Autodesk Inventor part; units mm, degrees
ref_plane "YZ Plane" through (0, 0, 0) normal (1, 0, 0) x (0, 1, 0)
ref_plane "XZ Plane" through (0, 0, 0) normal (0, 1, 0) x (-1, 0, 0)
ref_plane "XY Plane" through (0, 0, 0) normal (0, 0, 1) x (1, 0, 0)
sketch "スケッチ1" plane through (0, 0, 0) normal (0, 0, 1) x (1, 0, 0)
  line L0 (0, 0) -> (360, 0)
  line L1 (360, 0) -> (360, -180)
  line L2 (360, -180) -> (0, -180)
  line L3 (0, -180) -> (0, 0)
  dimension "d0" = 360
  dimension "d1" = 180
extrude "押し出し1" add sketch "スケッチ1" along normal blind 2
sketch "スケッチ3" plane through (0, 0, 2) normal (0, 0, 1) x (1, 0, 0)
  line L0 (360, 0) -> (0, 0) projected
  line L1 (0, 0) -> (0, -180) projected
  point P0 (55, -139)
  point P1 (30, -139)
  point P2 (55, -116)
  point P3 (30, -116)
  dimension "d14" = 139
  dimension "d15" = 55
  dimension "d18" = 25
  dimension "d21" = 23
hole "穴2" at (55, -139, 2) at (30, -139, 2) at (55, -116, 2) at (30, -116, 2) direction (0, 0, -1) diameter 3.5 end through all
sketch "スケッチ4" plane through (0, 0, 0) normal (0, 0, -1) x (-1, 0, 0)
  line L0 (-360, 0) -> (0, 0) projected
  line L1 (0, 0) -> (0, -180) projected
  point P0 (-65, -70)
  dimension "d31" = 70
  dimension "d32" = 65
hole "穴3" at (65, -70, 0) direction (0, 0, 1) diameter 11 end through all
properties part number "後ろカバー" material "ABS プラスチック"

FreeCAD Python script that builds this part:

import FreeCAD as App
import Part
import Sketcher

V = App.Vector
Q = App.Units.Quantity

doc = App.newDocument("Part")
body = doc.addObject("PartDesign::Body", "Body")

# Sketch on XY plane
sketch1 = body.newObject("Sketcher::SketchObject", "Sketch")
sketch1.AttachmentSupport = (doc.getObject("XY_Plane"), [""])
sketch1.MapMode = "FlatFace"
sketch1.addGeometry(Part.LineSegment(V(360, 0, 0), V(0, 0, 0)), False)
sketch1.addGeometry(Part.LineSegment(V(0, 0, 0), V(0, -180, 0)), False)
sketch1.addGeometry(Part.LineSegment(V(0, -180, 0), V(360, -180, 0)), False)
sketch1.addGeometry(Part.LineSegment(V(360, -180, 0), V(360, 0, 0)), False)
sketch1.addConstraint(Sketcher.Constraint("Coincident", 0, 2, 1, 1))
sketch1.addConstraint(Sketcher.Constraint("Coincident", 1, 2, 2, 1))
sketch1.addConstraint(Sketcher.Constraint("Coincident", 2, 2, 3, 1))
sketch1.addConstraint(Sketcher.Constraint("Coincident", 3, 2, 0, 1))
sketch1.addConstraint(Sketcher.Constraint("Horizontal", 0))
sketch1.addConstraint(Sketcher.Constraint("Vertical", 1))
sketch1.addConstraint(Sketcher.Constraint("Horizontal", 2))
sketch1.addConstraint(Sketcher.Constraint("Vertical", 3))
sketch1.addConstraint(Sketcher.Constraint("Coincident", 0, 2, -1, 1))
sketch1.addConstraint(Sketcher.Constraint("DistanceX", 0, 2, 0, 1, Q("360 mm")))
sketch1.addConstraint(Sketcher.Constraint("DistanceY", 1, 2, 1, 1, Q("180 mm")))
pad1 = body.newObject("PartDesign::Pad", "Pad")
pad1.Profile = sketch1
pad1.Length = 2

# Sketch on XY plane
sketch2 = body.newObject("Sketcher::SketchObject", "Sketch001")
sketch2.AttachmentSupport = (doc.getObject("XY_Plane"), [""])
sketch2.MapMode = "FlatFace"
sketch2.AttachmentOffset = App.Placement(V(0, 0, 2), App.Rotation())
sketch2.addGeometry(Part.Circle(V(55, -139, 0), V(0, 0, 1), 1.8), False)
sketch2.addGeometry(Part.Circle(V(30, -139, 0), V(0, 0, 1), 1.8), False)
sketch2.addGeometry(Part.Circle(V(55, -116, 0), V(0, 0, 1), 1.8), False)
sketch2.addGeometry(Part.Circle(V(30, -116, 0), V(0, 0, 1), 1.8), False)
sketch2.addConstraint(Sketcher.Constraint("Equal", 0, 1))
sketch2.addConstraint(Sketcher.Constraint("Equal", 1, 2))
sketch2.addConstraint(Sketcher.Constraint("Equal", 2, 3))
sketch2.addConstraint(Sketcher.Constraint("Horizontal", 0, 3, 1, 3))
sketch2.addConstraint(Sketcher.Constraint("Horizontal", 2, 3, 3, 3))
sketch2.addConstraint(Sketcher.Constraint("Vertical", 0, 3, 2, 3))
sketch2.addConstraint(Sketcher.Constraint("Vertical", 1, 3, 3, 3))
sketch2.addConstraint(Sketcher.Constraint("Diameter", 0, Q("3.5 mm")))
sketch2.addConstraint(Sketcher.Constraint("DistanceX", -1, 1, 0, 3, Q("55 mm")))
sketch2.addConstraint(Sketcher.Constraint("DistanceY", 0, 3, -1, 1, Q("139 mm")))
sketch2.addConstraint(Sketcher.Constraint("DistanceX", -1, 1, 1, 3, Q("30 mm")))
sketch2.addConstraint(Sketcher.Constraint("DistanceY", 2, 3, -1, 1, Q("116 mm")))
doc.recompute()
hole = body.newObject("PartDesign::Hole", "Hole")
hole.Profile = sketch2
hole.ThreadType = "None"
hole.Diameter = 3.5
hole.DepthType = "ThroughAll"

# Sketch on XY plane
sketch3 = body.newObject("Sketcher::SketchObject", "Sketch002")
sketch3.AttachmentSupport = (doc.getObject("XY_Plane"), [""])
sketch3.MapMode = "FlatFace"
sketch3.addGeometry(Part.Circle(V(65, -70, 0), V(0, 0, 1), 6), False)
sketch3.addConstraint(Sketcher.Constraint("Diameter", 0, Q("11 mm")))
sketch3.addConstraint(Sketcher.Constraint("DistanceX", -1, 1, 0, 3, Q("65 mm")))
sketch3.addConstraint(Sketcher.Constraint("DistanceY", 0, 3, -1, 1, Q("70 mm")))
doc.recompute()
hole2 = body.newObject("PartDesign::Hole", "Hole001")
hole2.Profile = sketch3
hole2.ThreadType = "None"
hole2.Diameter = 11
hole2.DepthType = "ThroughAll"
hole2.Reversed = True

doc.recompute()
